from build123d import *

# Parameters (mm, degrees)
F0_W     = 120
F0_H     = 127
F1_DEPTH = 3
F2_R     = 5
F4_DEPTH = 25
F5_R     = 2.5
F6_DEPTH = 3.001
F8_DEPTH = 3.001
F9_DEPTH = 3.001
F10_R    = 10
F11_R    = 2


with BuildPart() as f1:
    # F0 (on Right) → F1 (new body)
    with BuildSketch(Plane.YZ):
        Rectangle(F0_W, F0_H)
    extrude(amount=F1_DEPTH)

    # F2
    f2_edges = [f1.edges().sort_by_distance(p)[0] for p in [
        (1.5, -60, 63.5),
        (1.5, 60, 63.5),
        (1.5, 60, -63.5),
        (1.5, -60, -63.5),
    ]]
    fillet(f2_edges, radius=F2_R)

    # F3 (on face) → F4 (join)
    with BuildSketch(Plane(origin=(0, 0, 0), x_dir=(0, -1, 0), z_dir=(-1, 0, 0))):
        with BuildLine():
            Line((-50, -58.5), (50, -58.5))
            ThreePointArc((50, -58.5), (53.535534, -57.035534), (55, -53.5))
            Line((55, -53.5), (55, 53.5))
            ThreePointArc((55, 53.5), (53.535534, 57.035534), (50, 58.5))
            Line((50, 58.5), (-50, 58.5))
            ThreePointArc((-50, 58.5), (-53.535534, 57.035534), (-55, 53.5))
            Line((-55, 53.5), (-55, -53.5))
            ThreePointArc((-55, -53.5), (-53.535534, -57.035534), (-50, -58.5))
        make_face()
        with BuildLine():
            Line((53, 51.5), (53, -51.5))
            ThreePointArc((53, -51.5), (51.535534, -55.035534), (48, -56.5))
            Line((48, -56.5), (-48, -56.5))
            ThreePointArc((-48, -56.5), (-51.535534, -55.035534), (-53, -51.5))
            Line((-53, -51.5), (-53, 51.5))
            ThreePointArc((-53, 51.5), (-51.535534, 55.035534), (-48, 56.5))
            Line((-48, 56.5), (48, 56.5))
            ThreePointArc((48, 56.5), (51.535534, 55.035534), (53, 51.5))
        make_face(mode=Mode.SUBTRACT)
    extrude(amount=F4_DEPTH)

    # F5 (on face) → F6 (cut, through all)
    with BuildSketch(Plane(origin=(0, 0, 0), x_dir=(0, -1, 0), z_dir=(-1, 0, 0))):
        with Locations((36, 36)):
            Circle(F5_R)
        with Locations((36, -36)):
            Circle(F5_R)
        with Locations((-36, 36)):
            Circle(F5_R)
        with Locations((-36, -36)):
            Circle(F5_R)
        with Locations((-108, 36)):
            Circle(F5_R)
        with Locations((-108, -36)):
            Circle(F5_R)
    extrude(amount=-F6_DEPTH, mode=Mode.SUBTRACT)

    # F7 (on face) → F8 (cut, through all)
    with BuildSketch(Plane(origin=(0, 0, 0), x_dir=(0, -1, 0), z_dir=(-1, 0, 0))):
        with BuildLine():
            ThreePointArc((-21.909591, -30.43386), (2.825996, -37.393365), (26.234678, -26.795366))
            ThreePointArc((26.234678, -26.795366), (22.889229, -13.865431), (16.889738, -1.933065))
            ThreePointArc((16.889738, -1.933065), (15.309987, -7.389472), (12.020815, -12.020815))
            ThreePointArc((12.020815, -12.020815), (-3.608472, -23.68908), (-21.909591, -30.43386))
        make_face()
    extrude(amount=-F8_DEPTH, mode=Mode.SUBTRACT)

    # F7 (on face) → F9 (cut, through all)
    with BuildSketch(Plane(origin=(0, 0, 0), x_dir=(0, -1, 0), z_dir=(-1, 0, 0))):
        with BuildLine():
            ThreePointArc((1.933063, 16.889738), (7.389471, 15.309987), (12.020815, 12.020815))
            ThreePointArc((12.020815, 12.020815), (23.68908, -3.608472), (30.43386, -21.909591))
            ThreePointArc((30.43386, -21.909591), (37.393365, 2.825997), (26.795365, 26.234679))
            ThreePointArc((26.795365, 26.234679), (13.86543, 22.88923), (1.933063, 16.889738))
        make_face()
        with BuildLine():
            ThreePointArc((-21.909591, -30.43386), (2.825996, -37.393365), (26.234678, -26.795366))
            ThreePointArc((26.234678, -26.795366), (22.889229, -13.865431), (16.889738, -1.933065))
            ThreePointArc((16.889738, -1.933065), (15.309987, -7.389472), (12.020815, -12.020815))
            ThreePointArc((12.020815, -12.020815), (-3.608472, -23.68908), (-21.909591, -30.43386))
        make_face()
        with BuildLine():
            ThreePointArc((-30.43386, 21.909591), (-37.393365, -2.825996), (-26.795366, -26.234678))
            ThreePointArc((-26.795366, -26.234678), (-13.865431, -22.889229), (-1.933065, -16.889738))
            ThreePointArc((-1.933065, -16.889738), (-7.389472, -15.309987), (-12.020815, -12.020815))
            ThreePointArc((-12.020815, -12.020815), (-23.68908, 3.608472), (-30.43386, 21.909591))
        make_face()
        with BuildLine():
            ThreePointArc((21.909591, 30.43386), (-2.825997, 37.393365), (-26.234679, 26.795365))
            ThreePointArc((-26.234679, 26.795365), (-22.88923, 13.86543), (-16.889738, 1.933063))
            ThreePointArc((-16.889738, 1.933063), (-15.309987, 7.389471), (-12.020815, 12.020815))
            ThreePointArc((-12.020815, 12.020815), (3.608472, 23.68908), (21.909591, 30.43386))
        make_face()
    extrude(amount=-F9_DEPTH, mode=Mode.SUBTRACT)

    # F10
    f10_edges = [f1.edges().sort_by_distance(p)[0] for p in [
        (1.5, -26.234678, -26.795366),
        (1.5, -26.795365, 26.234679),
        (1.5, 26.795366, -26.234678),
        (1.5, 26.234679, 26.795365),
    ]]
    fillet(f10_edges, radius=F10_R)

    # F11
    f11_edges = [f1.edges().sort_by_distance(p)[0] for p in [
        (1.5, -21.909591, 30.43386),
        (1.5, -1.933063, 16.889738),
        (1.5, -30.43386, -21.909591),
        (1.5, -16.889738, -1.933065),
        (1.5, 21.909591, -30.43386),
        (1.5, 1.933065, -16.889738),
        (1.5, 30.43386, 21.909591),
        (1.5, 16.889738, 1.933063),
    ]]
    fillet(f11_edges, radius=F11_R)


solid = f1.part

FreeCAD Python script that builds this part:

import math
import FreeCAD as App
import Part
import Sketcher

V = App.Vector


def edges_at(feature, points):
    """Names of the edges that pass closest to the given points."""
    edges = feature.Shape.Edges
    near = lambda p: min(range(len(edges)), key=lambda i: edges[i].distToShape(Part.Vertex(*p))[0])
    return sorted({f"Edge{near(p) + 1}" for p in points})

doc = App.newDocument("Part")
params = doc.addObject("Spreadsheet::Sheet", "Params")
for row, (alias, value) in enumerate([
    ("sketch1_width", "120 mm"),
    ("sketch1_height", "127 mm"),
    ("pad1_length", "3 mm"),
    ("fillet_radius", "5 mm"),
    ("sketch2_radius", "5 mm"),
    ("sketch2_width", "100 mm"),
    ("sketch2_width2", "96 mm"),
    ("sketch2_height", "107 mm"),
    ("sketch2_height2", "103 mm"),
    ("pad2_length", "25 mm"),
    ("sketch3_diameter", "5 mm"),
    ("sketch4_radius", "37.499999 mm"),
    ("sketch5_radius", "17 mm"),
    ("sketch5_radius2", "37.499999 mm"),
    ("fillet2_radius", "10 mm"),
    ("fillet3_radius", "2 mm"),
], start=1):
    params.set(f"A{row}", alias)
    params.set(f"B{row}", "=" + value)
    params.setAlias(f"B{row}", alias)

body = doc.addObject("PartDesign::Body", "Body")

# Sketch on YZ plane
sketch1 = body.newObject("Sketcher::SketchObject", "Sketch")
sketch1.AttachmentSupport = (doc.getObject("YZ_Plane"), [""])
sketch1.MapMode = "FlatFace"
sketch1.addGeometry([
    Part.LineSegment(V(-60, 64, 0), V(-60, -64, 0)),
    Part.LineSegment(V(-60, -64, 0), V(60, -64, 0)),
    Part.LineSegment(V(60, -64, 0), V(60, 64, 0)),
    Part.LineSegment(V(60, 64, 0), V(-60, 64, 0)),
], False)
sketch1.addConstraint([
    Sketcher.Constraint("Coincident", 0, 2, 1, 1),
    Sketcher.Constraint("Coincident", 1, 2, 2, 1),
    Sketcher.Constraint("Coincident", 2, 2, 3, 1),
    Sketcher.Constraint("Coincident", 3, 2, 0, 1),
    Sketcher.Constraint("Vertical", 0),
    Sketcher.Constraint("Horizontal", 1),
    Sketcher.Constraint("Vertical", 2),
    Sketcher.Constraint("Horizontal", 3),
    Sketcher.Constraint("Symmetric", 0, 2, 2, 2, -1, 1),
    Sketcher.Constraint("DistanceX", 1, 1, 1, 2, 120.0),
    Sketcher.Constraint("DistanceY", 0, 2, 0, 1, 127.0),
])
sketch1.setExpression("Constraints[9]", "Params.sketch1_width")
sketch1.setExpression("Constraints[10]", "Params.sketch1_height")
pad1 = body.newObject("PartDesign::Pad", "Pad")
pad1.Profile = sketch1
pad1.setExpression("Length", "Params.pad1_length")
doc.recompute()

fillet = body.newObject("PartDesign::Fillet", "Fillet")
fillet.Base = (pad1, edges_at(pad1, [
    (1.5, -60, 63.5),
    (1.5, 60, 63.5),
    (1.5, 60, -63.5),
    (1.5, -60, -63.5),
]))
fillet.setExpression("Radius", "Params.fillet_radius")

# Sketch on YZ plane
sketch2 = body.newObject("Sketcher::SketchObject", "Sketch001")
sketch2.AttachmentSupport = (doc.getObject("YZ_Plane"), [""])
sketch2.MapMode = "FlatFace"
sketch2.addGeometry([
    Part.LineSegment(V(50, -58.5, 0), V(-50, -58.5, 0)),  # 0
    Part.ArcOfCircle(Part.Circle(V(-50, -53.5, 0), V(0, 0, 1), 5), math.radians(180), math.radians(270)),  # 1
    Part.LineSegment(V(-55, -53.5, 0), V(-55, 53.5, 0)),  # 2
    Part.ArcOfCircle(Part.Circle(V(-50, 53.5, 0), V(0, 0, 1), 5), math.radians(90), math.radians(180)),  # 3
    Part.LineSegment(V(-50, 58.5, 0), V(50, 58.5, 0)),  # 4
    Part.ArcOfCircle(Part.Circle(V(50, 53.5, 0), V(0, 0, 1), 5), math.radians(0), math.radians(90)),  # 5
    Part.LineSegment(V(55, 53.5, 0), V(55, -53.5, 0)),  # 6
    Part.ArcOfCircle(Part.Circle(V(50, -53.5, 0), V(0, 0, 1), 5), math.radians(-90), math.radians(0)),  # 7
    Part.ArcOfCircle(Part.Circle(V(-48, 51.5, 0), V(0, 0, 1), 5), math.radians(90), math.radians(180)),  # 8
    Part.LineSegment(V(-53, 51.5, 0), V(-53, -51.5, 0)),  # 9
    Part.ArcOfCircle(Part.Circle(V(-48, -51.5, 0), V(0, 0, 1), 5), math.radians(180), math.radians(270)),  # 10
    Part.LineSegment(V(-48, -56.5, 0), V(48, -56.5, 0)),  # 11
    Part.ArcOfCircle(Part.Circle(V(48, -51.5, 0), V(0, 0, 1), 5), math.radians(-90), math.radians(0)),  # 12
    Part.LineSegment(V(53, -51.5, 0), V(53, 51.5, 0)),  # 13
    Part.ArcOfCircle(Part.Circle(V(48, 51.5, 0), V(0, 0, 1), 5), math.radians(0), math.radians(90)),  # 14
    Part.LineSegment(V(48, 56.5, 0), V(-48, 56.5, 0)),  # 15
], False)
sketch2.addConstraint([
    Sketcher.Constraint("Tangent", 0, 2, 1, 2),
    Sketcher.Constraint("Tangent", 1, 1, 2, 1),
    Sketcher.Constraint("Tangent", 2, 2, 3, 2),
    Sketcher.Constraint("Tangent", 3, 1, 4, 1),
    Sketcher.Constraint("Tangent", 4, 2, 5, 2),
    Sketcher.Constraint("Tangent", 5, 1, 6, 1),
    Sketcher.Constraint("Tangent", 6, 2, 7, 2),
    Sketcher.Constraint("Tangent", 7, 1, 0, 1),
    Sketcher.Constraint("Tangent", 8, 2, 9, 1),
    Sketcher.Constraint("Tangent", 9, 2, 10, 1),
    Sketcher.Constraint("Tangent", 10, 2, 11, 1),
    Sketcher.Constraint("Tangent", 11, 2, 12, 1),
    Sketcher.Constraint("Tangent", 12, 2, 13, 1),
    Sketcher.Constraint("Tangent", 13, 2, 14, 1),
    Sketcher.Constraint("Tangent", 14, 2, 15, 1),
    Sketcher.Constraint("Tangent", 15, 2, 8, 1),
    Sketcher.Constraint("Horizontal", 0),
    Sketcher.Constraint("Vertical", 2),
    Sketcher.Constraint("Horizontal", 4),
    Sketcher.Constraint("Vertical", 6),
    Sketcher.Constraint("Vertical", 9),
    Sketcher.Constraint("Horizontal", 11),
    Sketcher.Constraint("Vertical", 13),
    Sketcher.Constraint("Horizontal", 15),
    Sketcher.Constraint("Equal", 1, 3),
    Sketcher.Constraint("Equal", 3, 5),
    Sketcher.Constraint("Equal", 5, 7),
    Sketcher.Constraint("Equal", 7, 8),
    Sketcher.Constraint("Equal", 8, 10),
    Sketcher.Constraint("Equal", 10, 12),
    Sketcher.Constraint("Equal", 12, 14),
    Sketcher.Constraint("Symmetric", 1, 3, 5, 3, -1, 1),
    Sketcher.Constraint("Symmetric", 8, 3, 12, 3, -1, 1),
    Sketcher.Constraint("Radius", 1, 5.0),
    Sketcher.Constraint("DistanceX", 0, 2, 0, 1, 100.0),
    Sketcher.Constraint("DistanceX", 11, 1, 11, 2, 96.0),
    Sketcher.Constraint("DistanceY", 2, 1, 2, 2, 107.0),
    Sketcher.Constraint("DistanceY", 9, 2, 9, 1, 103.0),
])
sketch2.setExpression("Constraints[33]", "Params.sketch2_radius")
sketch2.setExpression("Constraints[34]", "Params.sketch2_width")
sketch2.setExpression("Constraints[35]", "Params.sketch2_width2")
sketch2.setExpression("Constraints[36]", "Params.sketch2_height")
sketch2.setExpression("Constraints[37]", "Params.sketch2_height2")
pad2 = body.newObject("PartDesign::Pad", "Pad001")
pad2.Profile = sketch2
pad2.setExpression("Length", "Params.pad2_length")
pad2.Reversed = True

# Sketch on YZ plane
sketch3 = body.newObject("Sketcher::SketchObject", "Sketch002")
sketch3.AttachmentSupport = (doc.getObject("YZ_Plane"), [""])
sketch3.MapMode = "FlatFace"
sketch3.addGeometry([
    Part.Circle(V(-36, 36, 0), V(0, 0, 1), 2.5),  # 0
    Part.Circle(V(-36, -36, 0), V(0, 0, 1), 2.5),  # 1
    Part.Circle(V(36, 36, 0), V(0, 0, 1), 2.5),  # 2
    Part.Circle(V(36, -36, 0), V(0, 0, 1), 2.5),  # 3
    Part.Circle(V(108, 36, 0), V(0, 0, 1), 2.5),  # 4
    Part.Circle(V(108, -36, 0), V(0, 0, 1), 2.5),  # 5
], False)
sketch3.addConstraint([
    Sketcher.Constraint("Equal", 0, 1),
    Sketcher.Constraint("Equal", 1, 2),
    Sketcher.Constraint("Equal", 2, 3),
    Sketcher.Constraint("Equal", 3, 4),
    Sketcher.Constraint("Equal", 4, 5),
    Sketcher.Constraint("Symmetric", 1, 3, 2, 3, -1, 1),
    Sketcher.Constraint("Symmetric", 0, 3, 3, 3, -1, 1),
    Sketcher.Constraint("Symmetric", 0, 3, 2, 3, -2),
    Sketcher.Constraint("Symmetric", 4, 3, 5, 3, -1),
    Sketcher.Constraint("Horizontal", 2, 3, 4, 3),
    Sketcher.Constraint("Diameter", 0, 5.0),
    Sketcher.Constraint("DistanceX", 0, 3, -1, 1, 36.0),
    Sketcher.Constraint("DistanceY", -1, 1, 0, 3, 36.0),
    Sketcher.Constraint("DistanceX", -1, 1, 4, 3, 108.0),
])
sketch3.setExpression("Constraints[10]", "Params.sketch3_diameter")
pocket1 = body.newObject("PartDesign::Pocket", "Pocket")
pocket1.Profile = sketch3
pocket1.Type = "ThroughAll"
pocket1.Reversed = True

# Sketch on YZ plane
sketch4 = body.newObject("Sketcher::SketchObject", "Sketch003")
sketch4.AttachmentSupport = (doc.getObject("YZ_Plane"), [""])
sketch4.MapMode = "FlatFace"
sketch4.addGeometry([
    Part.ArcOfCircle(Part.Circle(V(0, 0, 0), V(0, 0, 1), 37), math.radians(-134), math.radians(-54)),
    Part.ArcOfCircle(Part.Circle(V(36, -36, 0), V(0, 0, 1), 63), math.radians(147), math.radians(172)),
    Part.ArcOfCircle(Part.Circle(V(0, 0, 0), V(0, 0, 1), 17), math.radians(-173), math.radians(-135)),
    Part.ArcOfCircle(Part.Circle(V(36, 36, 0), V(0, 0, 1), 68), math.radians(-135), math.radians(-102)),
], False)
sketch4.addConstraint([
    Sketcher.Constraint("Coincident", 0, 1, 1, 2),
    Sketcher.Constraint("Coincident", 1, 1, 2, 1),
    Sketcher.Constraint("Tangent", 2, 2, 3, 1),
    Sketcher.Constraint("Coincident", 3, 2, 0, 2),
    Sketcher.Constraint("Coincident", 0, 3, -1, 1),
    Sketcher.Constraint("Coincident", 2, 3, -1, 1),
    Sketcher.Constraint("Symmetric", 1, 3, 3, 3, -1),
    Sketcher.Constraint("Radius", 0, 37.499999),
    Sketcher.Constraint("DistanceX", -1, 1, 1, 3, 36.000001),
    Sketcher.Constraint("DistanceY", 1, 3, -1, 1, 36.0),
    Sketcher.Constraint("Radius", 1, 62.911688),
    Sketcher.Constraint("Radius", 3, 67.911689),
])
sketch4.setExpression("Constraints[7]", "Params.sketch4_radius")
pocket2 = body.newObject("PartDesign::Pocket", "Pocket001")
pocket2.Profile = sketch4
pocket2.Type = "ThroughAll"
pocket2.Reversed = True

# Sketch on YZ plane
sketch5 = body.newObject("Sketcher::SketchObject", "Sketch004")
sketch5.AttachmentSupport = (doc.getObject("YZ_Plane"), [""])
sketch5.MapMode = "FlatFace"
sketch5.addGeometry([
    Part.ArcOfCircle(Part.Circle(V(0, 0, 0), V(0, 0, 1), 17), math.radians(97), math.radians(135)),  # 0
    Part.ArcOfCircle(Part.Circle(V(36, -36, 0), V(0, 0, 1), 68), math.radians(135), math.radians(168)),  # 1
    Part.ArcOfCircle(Part.Circle(V(0, 0, 0), V(0, 0, 1), 37), math.radians(136), math.radians(216)),  # 2
    Part.ArcOfCircle(Part.Circle(V(-36, -36, 0), V(0, 0, 1), 63), math.radians(57), math.radians(82)),  # 3
    Part.ArcOfCircle(Part.Circle(V(0, 0, 0), V(0, 0, 1), 37), math.radians(-134), math.radians(-54)),  # 4
    Part.ArcOfCircle(Part.Circle(V(36, -36, 0), V(0, 0, 1), 63), math.radians(147), math.radians(172)),  # 5
    Part.ArcOfCircle(Part.Circle(V(0, 0, 0), V(0, 0, 1), 17), math.radians(-173), math.radians(-135)),  # 6
    Part.ArcOfCircle(Part.Circle(V(36, 36, 0), V(0, 0, 1), 68), math.radians(-135), math.radians(-102)),  # 7
    Part.ArcOfCircle(Part.Circle(V(0, 0, 0), V(0, 0, 1), 37), math.radians(-44), math.radians(36)),  # 8
    Part.ArcOfCircle(Part.Circle(V(36, 36, 0), V(0, 0, 1), 63), math.radians(-123), math.radians(-98)),  # 9
    Part.ArcOfCircle(Part.Circle(V(0, 0, 0), V(0, 0, 1), 17), math.radians(-83), math.radians(-45)),  # 10
    Part.ArcOfCircle(Part.Circle(V(-36, 36, 0), V(0, 0, 1), 68), math.radians(-45), math.radians(-12)),  # 11
    Part.ArcOfCircle(Part.Circle(V(0, 0, 0), V(0, 0, 1), 37), math.radians(46), math.radians(126)),  # 12
    Part.ArcOfCircle(Part.Circle(V(-36, 36, 0), V(0, 0, 1), 63), math.radians(-33), math.radians(-8)),  # 13
    Part.ArcOfCircle(Part.Circle(V(0, 0, 0), V(0, 0, 1), 17), math.radians(7), math.radians(45)),  # 14
    Part.ArcOfCircle(Part.Circle(V(-36, -36, 0), V(0, 0, 1), 68), math.radians(45), math.radians(78)),  # 15
], False)
sketch5.addConstraint([
    Sketcher.Constraint("Tangent", 0, 2, 1, 1),
    Sketcher.Constraint("Coincident", 1, 2, 2, 2),
    Sketcher.Constraint("Coincident", 2, 1, 3, 2),
    Sketcher.Constraint("Coincident", 3, 1, 0, 1),
    Sketcher.Constraint("Coincident", 4, 1, 5, 2),
    Sketcher.Constraint("Coincident", 5, 1, 6, 1),
    Sketcher.Constraint("Tangent", 6, 2, 7, 1),
    Sketcher.Constraint("Coincident", 7, 2, 4, 2),
    Sketcher.Constraint("Coincident", 8, 1, 9, 2),
    Sketcher.Constraint("Coincident", 9, 1, 10, 1),
    Sketcher.Constraint("Tangent", 10, 2, 11, 1),
    Sketcher.Constraint("Coincident", 11, 2, 8, 2),
    Sketcher.Constraint("Coincident", 12, 1, 13, 2),
    Sketcher.Constraint("Coincident", 13, 1, 14, 1),
    Sketcher.Constraint("Tangent", 14, 2, 15, 1),
    Sketcher.Constraint("Coincident", 15, 2, 12, 2),
    Sketcher.Constraint("Coincident", 0, 3, -1, 1),
    Sketcher.Constraint("Coincident", 2, 3, -1, 1),
    Sketcher.Constraint("Coincident", 4, 3, -1, 1),
    Sketcher.Constraint("Coincident", 6, 3, -1, 1),
    Sketcher.Constraint("Coincident", 8, 3, -1, 1),
    Sketcher.Constraint("Coincident", 10, 3, -1, 1),
    Sketcher.Constraint("Coincident", 12, 3, -1, 1),
    Sketcher.Constraint("Coincident", 14, 3, -1, 1),
    Sketcher.Constraint("Coincident", 5, 3, 1, 3),
    Sketcher.Constraint("Coincident", 9, 3, 7, 3),
    Sketcher.Constraint("Coincident", 13, 3, 11, 3),
    Sketcher.Constraint("Coincident", 15, 3, 3, 3),
    Sketcher.Constraint("Equal", 2, 4),
    Sketcher.Constraint("Equal", 1, 7),
    Sketcher.Constraint("Equal", 4, 8),
    Sketcher.Constraint("Equal", 5, 9),
    Sketcher.Constraint("Equal", 6, 10),
    Sketcher.Constraint("Equal", 7, 11),
    Sketcher.Constraint("Equal", 8, 12),
    Sketcher.Constraint("Equal", 3, 13),
    Sketcher.Constraint("Equal", 0, 14),
    Sketcher.Constraint("Equal", 11, 15),
    Sketcher.Constraint("Symmetric", 3, 3, 7, 3, -1, 1),
    Sketcher.Constraint("Horizontal", 9, 3, 11, 3),
    Sketcher.Constraint("Horizontal", 5, 3, 15, 3),
    Sketcher.Constraint("Radius", 0, 17.0),
    Sketcher.Constraint("Radius", 2, 37.499999),
    Sketcher.Constraint("DistanceX", -1, 1, 1, 3, 36.000001),
    Sketcher.Constraint("DistanceY", 1, 3, -1, 1, 36.000001),
    Sketcher.Constraint("Radius", 3, 62.911682),
    Sketcher.Constraint("Radius", 5, 62.911688),
])
sketch5.setExpression("Constraints[41]", "Params.sketch5_radius")
sketch5.setExpression("Constraints[42]", "Params.sketch5_radius2")
pocket3 = body.newObject("PartDesign::Pocket", "Pocket002")
pocket3.Profile = sketch5
pocket3.Type = "ThroughAll"
pocket3.Reversed = True
doc.recompute()

fillet2 = body.newObject("PartDesign::Fillet", "Fillet001")
fillet2.Base = (pocket3, edges_at(pocket3, [
    (1.5, -26.235, -26.795),
    (1.5, -26.795, 26.235),
    (1.5, 26.795, -26.235),
    (1.5, 26.235, 26.795),
]))
fillet2.setExpression("Radius", "Params.fillet2_radius")
doc.recompute()

fillet3 = body.newObject("PartDesign::Fillet", "Fillet002")
fillet3.Base = (fillet2, edges_at(fillet2, [
    (1.5, -21.91, 30.434),
    (1.5, -1.933, 16.89),
    (1.5, -30.434, -21.91),
    (1.5, -16.89, -1.933),
    (1.5, 21.91, -30.434),
    (1.5, 1.933, -16.89),
    (1.5, 30.434, 21.91),
    (1.5, 16.89, 1.933),
]))
fillet3.setExpression("Radius", "Params.fillet3_radius")

doc.recompute()
